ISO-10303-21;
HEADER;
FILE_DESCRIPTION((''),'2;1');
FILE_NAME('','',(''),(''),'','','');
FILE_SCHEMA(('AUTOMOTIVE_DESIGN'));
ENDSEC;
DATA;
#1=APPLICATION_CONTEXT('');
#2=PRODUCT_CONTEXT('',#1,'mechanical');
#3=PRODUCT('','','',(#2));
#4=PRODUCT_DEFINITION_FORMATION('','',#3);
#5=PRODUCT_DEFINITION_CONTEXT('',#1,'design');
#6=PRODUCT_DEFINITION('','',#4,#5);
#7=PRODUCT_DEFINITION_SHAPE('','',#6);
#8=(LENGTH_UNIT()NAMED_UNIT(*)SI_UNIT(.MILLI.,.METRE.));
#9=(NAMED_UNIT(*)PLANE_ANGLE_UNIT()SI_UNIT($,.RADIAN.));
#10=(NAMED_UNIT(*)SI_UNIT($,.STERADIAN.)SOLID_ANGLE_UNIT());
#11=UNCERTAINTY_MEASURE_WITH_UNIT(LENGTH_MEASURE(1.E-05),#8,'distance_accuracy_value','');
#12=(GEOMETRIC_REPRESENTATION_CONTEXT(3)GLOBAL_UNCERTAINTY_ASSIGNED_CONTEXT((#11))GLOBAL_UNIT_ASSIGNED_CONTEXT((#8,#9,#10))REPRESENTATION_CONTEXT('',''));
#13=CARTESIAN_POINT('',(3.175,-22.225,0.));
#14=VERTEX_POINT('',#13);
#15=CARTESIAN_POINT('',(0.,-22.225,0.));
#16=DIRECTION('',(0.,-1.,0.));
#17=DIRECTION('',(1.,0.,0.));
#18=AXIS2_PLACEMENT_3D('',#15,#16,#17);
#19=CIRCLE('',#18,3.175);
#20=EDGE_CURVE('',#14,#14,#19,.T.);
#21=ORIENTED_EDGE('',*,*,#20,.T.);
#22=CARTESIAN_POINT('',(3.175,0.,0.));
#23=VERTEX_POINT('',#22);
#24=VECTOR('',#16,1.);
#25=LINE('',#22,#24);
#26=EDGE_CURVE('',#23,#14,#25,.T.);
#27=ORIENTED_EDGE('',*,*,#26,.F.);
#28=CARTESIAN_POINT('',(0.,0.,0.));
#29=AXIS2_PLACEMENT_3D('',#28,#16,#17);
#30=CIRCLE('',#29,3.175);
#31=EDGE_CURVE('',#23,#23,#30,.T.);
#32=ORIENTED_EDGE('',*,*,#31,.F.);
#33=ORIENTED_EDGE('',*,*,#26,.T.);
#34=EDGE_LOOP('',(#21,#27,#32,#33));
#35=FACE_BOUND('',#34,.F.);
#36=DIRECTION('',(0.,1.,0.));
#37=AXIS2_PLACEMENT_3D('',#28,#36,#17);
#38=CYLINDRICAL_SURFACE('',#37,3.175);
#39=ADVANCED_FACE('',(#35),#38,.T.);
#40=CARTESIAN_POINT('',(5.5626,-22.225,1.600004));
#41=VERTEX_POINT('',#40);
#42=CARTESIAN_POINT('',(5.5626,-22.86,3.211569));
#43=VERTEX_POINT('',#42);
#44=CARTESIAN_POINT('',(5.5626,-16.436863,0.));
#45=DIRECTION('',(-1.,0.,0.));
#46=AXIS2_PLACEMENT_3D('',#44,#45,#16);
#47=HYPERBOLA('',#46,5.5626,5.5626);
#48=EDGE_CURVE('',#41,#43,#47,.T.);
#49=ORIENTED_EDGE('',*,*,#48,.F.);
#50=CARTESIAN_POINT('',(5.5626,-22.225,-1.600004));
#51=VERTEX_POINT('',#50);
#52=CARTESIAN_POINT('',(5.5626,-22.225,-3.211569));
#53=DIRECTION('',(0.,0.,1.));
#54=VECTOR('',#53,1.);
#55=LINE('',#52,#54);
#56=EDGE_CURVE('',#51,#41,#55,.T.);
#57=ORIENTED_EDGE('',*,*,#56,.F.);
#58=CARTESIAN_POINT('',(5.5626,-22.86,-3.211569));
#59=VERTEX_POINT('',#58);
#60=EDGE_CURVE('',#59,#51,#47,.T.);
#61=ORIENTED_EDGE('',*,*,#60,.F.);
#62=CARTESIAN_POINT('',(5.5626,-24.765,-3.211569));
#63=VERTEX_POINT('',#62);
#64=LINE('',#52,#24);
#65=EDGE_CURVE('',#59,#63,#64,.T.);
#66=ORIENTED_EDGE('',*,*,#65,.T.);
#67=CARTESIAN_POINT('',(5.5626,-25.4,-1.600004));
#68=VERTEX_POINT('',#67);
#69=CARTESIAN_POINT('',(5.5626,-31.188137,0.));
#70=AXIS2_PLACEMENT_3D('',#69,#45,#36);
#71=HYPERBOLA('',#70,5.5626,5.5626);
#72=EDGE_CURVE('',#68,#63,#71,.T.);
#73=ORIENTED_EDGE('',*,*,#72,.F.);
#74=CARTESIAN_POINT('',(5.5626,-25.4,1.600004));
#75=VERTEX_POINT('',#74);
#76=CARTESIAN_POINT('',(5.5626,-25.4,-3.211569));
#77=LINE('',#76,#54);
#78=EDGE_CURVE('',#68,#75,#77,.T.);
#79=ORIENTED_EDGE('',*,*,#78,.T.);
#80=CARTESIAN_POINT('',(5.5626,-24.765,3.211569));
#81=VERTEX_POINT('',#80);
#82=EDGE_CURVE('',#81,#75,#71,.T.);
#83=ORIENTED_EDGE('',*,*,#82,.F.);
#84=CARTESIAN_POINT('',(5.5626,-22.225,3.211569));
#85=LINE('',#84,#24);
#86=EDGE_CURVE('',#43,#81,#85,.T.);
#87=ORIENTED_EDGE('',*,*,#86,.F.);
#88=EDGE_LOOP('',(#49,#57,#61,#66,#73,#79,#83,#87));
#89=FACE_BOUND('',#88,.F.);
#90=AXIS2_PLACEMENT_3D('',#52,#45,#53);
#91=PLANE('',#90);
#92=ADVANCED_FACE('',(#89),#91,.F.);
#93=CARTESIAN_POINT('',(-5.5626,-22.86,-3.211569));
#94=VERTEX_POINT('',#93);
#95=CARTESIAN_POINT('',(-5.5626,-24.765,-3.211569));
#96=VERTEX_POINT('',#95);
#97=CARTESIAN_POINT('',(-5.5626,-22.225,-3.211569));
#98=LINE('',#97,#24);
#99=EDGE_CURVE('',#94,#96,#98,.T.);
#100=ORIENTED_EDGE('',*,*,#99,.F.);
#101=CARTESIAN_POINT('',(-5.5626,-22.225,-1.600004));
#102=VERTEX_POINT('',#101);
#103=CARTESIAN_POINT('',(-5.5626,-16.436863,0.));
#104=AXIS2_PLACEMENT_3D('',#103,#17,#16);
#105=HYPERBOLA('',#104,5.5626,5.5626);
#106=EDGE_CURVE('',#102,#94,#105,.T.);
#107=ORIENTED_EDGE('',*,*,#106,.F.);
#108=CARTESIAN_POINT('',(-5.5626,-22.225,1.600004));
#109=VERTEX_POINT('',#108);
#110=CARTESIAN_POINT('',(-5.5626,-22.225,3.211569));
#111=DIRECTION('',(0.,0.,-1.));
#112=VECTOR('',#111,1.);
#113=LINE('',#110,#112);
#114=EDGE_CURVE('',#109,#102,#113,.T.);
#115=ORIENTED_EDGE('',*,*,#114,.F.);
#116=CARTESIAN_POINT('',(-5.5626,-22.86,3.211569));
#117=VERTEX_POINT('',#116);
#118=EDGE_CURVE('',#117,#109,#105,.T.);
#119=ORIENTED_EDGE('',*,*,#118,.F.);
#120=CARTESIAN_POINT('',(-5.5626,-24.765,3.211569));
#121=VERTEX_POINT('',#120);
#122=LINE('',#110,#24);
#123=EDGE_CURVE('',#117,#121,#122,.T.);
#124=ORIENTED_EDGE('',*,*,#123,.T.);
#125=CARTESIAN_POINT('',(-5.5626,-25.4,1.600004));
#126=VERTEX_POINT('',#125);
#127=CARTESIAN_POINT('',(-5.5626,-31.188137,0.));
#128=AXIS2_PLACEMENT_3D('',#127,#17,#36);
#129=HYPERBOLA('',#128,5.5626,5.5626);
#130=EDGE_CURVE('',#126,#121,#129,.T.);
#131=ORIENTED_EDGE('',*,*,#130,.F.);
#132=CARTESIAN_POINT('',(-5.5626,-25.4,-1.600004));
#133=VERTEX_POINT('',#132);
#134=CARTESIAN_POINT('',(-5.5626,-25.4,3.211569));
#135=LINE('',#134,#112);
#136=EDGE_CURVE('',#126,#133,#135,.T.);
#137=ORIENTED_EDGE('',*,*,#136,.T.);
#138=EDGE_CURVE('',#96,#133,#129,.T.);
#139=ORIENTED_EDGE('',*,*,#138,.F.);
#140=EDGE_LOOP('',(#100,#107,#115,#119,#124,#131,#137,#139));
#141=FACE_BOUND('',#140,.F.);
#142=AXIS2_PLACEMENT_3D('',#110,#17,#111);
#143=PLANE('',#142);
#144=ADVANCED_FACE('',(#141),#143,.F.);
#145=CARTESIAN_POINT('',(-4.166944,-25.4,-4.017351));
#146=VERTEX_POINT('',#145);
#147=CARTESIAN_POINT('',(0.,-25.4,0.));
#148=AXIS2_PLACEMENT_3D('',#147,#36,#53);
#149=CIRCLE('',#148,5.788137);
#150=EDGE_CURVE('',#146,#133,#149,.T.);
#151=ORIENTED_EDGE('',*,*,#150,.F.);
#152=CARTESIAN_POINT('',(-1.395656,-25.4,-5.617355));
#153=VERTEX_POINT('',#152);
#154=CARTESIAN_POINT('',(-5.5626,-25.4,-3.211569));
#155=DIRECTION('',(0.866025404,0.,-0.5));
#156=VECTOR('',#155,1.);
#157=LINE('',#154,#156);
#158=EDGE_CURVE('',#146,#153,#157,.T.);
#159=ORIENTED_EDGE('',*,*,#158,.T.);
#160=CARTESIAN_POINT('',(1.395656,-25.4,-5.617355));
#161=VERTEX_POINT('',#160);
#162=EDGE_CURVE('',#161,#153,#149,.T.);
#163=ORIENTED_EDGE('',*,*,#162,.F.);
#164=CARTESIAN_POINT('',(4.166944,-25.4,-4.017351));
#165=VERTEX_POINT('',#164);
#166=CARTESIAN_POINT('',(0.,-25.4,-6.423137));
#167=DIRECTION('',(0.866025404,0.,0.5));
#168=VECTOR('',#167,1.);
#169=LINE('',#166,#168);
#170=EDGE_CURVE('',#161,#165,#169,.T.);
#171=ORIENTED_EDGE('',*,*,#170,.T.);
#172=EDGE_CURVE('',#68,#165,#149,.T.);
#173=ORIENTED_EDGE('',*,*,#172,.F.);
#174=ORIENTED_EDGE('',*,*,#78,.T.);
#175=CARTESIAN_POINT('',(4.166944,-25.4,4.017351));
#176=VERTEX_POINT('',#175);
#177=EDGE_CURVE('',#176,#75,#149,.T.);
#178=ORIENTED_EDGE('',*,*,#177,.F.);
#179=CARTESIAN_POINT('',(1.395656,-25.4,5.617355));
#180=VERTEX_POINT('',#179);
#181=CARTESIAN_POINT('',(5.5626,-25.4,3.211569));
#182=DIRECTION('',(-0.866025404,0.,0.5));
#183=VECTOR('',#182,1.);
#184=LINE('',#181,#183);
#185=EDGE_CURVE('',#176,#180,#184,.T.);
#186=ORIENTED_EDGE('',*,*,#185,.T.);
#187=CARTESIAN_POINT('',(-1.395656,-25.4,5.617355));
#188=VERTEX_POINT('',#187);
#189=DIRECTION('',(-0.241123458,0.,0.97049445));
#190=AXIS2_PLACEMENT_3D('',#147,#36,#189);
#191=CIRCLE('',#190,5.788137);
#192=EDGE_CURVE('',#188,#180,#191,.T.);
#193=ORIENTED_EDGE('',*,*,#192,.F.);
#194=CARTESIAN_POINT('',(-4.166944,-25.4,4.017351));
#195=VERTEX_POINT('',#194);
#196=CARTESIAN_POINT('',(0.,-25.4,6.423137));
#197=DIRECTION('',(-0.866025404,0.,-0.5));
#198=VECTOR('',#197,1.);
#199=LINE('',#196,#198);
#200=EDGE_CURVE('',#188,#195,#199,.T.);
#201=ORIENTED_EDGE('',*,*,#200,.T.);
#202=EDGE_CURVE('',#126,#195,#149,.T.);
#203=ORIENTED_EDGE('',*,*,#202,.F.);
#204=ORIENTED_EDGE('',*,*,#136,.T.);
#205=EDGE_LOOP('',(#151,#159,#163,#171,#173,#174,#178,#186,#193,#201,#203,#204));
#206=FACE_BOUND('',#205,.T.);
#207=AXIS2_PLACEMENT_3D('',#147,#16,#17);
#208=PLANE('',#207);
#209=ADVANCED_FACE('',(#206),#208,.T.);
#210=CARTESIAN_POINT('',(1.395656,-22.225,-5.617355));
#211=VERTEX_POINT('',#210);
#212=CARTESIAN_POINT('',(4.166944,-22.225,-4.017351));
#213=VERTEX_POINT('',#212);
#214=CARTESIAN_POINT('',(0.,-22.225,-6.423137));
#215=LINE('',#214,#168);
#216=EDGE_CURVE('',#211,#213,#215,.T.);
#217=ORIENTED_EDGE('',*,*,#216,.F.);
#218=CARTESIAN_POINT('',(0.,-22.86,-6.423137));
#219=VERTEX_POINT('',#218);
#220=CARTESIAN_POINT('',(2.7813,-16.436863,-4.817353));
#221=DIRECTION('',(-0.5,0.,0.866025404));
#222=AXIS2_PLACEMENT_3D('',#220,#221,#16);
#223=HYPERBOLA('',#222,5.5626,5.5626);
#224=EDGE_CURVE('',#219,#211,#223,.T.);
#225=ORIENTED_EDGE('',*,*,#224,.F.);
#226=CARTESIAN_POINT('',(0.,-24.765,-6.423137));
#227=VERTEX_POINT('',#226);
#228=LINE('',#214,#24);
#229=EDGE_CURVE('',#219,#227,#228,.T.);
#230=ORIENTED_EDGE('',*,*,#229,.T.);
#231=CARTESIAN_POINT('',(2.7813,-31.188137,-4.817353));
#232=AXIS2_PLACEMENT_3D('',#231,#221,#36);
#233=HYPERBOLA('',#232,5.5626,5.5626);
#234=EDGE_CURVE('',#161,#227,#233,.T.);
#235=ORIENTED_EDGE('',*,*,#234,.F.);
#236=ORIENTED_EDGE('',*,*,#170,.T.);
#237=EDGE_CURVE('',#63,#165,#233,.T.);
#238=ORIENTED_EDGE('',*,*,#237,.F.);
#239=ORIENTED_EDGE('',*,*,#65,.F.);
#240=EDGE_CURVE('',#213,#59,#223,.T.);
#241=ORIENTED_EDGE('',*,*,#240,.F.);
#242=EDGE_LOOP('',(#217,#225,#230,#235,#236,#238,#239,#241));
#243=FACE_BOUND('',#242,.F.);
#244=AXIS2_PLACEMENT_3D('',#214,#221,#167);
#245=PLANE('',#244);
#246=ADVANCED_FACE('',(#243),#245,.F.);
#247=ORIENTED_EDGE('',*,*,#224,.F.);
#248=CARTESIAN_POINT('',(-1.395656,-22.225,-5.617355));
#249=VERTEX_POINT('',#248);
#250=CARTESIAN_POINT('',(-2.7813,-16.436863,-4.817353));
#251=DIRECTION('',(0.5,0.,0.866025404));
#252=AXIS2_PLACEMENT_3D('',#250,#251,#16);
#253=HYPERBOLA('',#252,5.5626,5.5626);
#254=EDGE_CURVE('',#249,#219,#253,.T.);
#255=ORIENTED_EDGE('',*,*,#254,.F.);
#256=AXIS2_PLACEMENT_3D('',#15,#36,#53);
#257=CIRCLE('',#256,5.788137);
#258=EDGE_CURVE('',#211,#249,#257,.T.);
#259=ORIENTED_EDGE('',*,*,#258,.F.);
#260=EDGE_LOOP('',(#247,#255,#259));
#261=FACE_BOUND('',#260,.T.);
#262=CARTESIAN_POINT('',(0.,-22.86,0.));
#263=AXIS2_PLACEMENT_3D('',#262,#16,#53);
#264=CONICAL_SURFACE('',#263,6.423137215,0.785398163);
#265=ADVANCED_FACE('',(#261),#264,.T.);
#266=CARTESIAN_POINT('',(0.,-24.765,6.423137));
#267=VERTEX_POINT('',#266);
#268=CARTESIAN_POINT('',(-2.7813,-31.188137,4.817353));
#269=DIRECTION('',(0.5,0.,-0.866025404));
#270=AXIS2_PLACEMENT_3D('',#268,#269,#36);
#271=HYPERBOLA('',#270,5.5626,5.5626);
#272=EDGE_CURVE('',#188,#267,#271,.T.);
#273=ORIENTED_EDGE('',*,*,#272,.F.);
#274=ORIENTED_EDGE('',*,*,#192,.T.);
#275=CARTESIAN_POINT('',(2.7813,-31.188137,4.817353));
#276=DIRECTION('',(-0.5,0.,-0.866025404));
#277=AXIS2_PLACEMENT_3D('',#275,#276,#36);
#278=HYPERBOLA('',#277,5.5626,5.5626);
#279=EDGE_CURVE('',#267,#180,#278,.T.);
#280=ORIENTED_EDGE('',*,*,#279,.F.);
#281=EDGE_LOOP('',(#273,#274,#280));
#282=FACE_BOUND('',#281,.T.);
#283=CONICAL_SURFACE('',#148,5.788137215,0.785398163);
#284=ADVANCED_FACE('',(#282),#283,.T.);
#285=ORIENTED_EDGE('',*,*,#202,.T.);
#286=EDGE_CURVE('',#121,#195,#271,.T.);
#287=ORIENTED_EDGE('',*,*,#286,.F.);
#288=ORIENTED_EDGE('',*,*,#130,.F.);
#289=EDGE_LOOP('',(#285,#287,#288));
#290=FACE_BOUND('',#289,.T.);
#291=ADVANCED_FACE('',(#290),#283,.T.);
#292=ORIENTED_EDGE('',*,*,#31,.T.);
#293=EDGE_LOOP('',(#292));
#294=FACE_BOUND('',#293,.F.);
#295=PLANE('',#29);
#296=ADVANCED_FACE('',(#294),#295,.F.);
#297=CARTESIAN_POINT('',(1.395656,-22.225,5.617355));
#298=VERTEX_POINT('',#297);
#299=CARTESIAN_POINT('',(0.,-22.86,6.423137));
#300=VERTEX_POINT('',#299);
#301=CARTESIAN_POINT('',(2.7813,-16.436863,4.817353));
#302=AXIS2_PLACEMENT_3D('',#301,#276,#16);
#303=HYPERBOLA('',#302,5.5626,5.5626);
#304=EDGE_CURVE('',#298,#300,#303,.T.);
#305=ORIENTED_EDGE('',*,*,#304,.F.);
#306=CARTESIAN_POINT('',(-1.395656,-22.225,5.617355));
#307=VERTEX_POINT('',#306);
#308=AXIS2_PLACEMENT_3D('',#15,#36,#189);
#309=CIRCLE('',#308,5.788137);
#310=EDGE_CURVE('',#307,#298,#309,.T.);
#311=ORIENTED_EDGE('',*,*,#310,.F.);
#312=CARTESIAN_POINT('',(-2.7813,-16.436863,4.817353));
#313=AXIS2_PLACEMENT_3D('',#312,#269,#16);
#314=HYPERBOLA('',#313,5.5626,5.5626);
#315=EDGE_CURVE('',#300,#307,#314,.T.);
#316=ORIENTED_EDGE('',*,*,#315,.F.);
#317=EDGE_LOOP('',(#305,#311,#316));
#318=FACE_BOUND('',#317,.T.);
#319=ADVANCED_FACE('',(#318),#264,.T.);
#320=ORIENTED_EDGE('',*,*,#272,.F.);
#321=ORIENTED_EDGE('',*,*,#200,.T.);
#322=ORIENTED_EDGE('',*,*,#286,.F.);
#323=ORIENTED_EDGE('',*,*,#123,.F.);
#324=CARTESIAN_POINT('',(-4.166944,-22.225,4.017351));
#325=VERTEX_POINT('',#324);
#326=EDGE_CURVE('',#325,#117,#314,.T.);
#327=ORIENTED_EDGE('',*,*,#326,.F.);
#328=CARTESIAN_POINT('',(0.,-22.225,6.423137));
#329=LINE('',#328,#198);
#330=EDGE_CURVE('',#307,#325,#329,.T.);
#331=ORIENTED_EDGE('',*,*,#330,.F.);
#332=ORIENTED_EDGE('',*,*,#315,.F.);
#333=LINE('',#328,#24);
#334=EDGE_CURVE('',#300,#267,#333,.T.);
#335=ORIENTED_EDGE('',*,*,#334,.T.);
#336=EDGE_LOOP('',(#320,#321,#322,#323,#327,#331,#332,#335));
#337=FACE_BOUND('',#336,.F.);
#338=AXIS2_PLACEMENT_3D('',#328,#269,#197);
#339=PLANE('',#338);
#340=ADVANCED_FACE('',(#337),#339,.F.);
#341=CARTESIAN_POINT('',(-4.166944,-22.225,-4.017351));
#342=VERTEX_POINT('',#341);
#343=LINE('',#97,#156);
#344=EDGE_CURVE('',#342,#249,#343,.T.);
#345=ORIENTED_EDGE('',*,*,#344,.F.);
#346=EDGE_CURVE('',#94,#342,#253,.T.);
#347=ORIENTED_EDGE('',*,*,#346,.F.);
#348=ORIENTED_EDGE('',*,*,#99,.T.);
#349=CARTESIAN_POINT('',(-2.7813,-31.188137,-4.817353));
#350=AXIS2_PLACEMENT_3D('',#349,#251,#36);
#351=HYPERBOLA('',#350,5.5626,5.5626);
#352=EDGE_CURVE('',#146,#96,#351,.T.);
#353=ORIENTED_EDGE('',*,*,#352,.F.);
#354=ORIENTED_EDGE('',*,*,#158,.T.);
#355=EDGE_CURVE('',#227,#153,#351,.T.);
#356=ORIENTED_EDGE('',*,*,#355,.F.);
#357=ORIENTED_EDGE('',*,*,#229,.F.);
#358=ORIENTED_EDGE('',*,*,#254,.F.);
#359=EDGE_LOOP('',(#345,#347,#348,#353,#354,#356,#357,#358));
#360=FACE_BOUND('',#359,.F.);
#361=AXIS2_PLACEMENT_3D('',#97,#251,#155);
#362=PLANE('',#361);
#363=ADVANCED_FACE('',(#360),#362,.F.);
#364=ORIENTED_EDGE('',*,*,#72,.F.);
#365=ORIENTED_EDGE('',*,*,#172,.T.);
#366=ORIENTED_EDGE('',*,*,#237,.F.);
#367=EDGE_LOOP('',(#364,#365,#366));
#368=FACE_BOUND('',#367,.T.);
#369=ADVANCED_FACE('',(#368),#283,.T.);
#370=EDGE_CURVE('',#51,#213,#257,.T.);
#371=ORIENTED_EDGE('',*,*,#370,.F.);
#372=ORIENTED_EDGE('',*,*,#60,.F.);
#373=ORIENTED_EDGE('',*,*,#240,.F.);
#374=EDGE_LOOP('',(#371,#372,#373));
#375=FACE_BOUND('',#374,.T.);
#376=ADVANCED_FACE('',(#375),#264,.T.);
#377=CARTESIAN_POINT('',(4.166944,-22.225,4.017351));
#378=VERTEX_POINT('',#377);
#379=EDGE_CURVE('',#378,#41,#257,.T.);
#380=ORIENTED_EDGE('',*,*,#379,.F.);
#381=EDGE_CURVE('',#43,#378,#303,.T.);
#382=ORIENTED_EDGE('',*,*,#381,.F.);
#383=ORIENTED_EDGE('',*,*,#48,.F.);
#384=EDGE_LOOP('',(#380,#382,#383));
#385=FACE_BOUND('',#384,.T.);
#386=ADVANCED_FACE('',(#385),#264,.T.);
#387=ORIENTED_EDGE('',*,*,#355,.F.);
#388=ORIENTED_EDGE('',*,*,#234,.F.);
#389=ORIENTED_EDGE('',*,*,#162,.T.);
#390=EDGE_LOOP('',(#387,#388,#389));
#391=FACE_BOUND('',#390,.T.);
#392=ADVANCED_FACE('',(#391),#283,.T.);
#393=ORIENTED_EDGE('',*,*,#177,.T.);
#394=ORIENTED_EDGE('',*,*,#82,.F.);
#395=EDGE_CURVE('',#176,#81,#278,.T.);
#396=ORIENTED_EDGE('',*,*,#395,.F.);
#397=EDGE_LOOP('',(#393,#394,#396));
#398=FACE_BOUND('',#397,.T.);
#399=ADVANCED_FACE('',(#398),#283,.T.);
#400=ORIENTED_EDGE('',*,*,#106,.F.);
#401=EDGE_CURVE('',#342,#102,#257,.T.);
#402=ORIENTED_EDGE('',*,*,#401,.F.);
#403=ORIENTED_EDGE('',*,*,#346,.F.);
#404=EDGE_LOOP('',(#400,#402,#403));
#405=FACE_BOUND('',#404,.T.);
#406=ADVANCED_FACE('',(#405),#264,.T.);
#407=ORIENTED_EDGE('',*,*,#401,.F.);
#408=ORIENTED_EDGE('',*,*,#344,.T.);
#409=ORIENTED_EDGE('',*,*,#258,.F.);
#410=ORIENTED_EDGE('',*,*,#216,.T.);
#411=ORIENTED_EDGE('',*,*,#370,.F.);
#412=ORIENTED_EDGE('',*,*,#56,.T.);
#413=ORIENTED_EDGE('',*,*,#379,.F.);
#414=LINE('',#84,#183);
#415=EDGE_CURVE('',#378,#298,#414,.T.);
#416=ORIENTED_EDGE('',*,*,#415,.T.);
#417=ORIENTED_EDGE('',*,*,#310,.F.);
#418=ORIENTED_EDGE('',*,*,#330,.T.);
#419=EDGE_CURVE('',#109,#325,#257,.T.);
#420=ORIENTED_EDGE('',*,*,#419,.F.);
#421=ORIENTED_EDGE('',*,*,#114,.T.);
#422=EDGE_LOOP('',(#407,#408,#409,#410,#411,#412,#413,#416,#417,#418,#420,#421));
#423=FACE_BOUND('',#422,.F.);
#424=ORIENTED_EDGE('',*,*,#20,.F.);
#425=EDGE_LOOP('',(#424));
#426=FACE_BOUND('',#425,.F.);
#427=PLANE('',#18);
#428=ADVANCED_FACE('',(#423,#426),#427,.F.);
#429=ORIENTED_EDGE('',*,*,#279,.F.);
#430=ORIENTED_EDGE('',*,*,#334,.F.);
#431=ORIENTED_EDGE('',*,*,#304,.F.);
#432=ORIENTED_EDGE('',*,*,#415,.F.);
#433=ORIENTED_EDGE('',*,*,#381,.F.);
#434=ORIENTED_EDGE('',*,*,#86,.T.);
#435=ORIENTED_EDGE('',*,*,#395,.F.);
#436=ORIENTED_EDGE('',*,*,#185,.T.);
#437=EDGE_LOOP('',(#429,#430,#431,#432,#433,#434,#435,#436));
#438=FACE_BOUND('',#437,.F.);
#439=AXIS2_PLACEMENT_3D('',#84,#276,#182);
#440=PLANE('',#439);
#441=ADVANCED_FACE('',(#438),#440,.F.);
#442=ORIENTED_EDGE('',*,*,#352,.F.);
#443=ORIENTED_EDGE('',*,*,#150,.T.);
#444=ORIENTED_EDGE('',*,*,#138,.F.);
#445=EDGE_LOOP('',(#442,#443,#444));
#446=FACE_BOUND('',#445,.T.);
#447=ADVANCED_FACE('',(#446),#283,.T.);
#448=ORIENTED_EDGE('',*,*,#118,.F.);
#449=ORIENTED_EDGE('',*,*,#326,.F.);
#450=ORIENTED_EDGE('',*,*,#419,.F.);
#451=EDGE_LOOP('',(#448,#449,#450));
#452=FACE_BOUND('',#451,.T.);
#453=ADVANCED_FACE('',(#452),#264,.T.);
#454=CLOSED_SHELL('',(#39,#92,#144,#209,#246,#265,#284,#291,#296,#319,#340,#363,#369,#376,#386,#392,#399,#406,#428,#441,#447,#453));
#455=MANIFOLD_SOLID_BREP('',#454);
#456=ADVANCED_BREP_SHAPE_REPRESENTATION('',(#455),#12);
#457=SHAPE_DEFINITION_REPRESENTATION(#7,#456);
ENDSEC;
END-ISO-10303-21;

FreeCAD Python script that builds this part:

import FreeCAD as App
import Part
import Sketcher

V = App.Vector
Q = App.Units.Quantity


def add_polygon(sketch, points):
    """Adds a closed chain of lines whose ends are joined by coincident constraints."""
    first, n = sketch.GeometryCount, len(points)
    for a, b in zip(points, points[1:] + points[:1]):
        sketch.addGeometry(Part.LineSegment(App.Vector(*a, 0), App.Vector(*b, 0)), False)
    for i in range(n):
        sketch.addConstraint(Sketcher.Constraint("Coincident", first + i, 2, first + (i + 1) % n, 1))

doc = App.newDocument("Part")
params = doc.addObject("Spreadsheet::Sheet", "Params")
for row, (alias, value) in enumerate([
    ("sketch1_diameter", "0.25 in"),
    ("pad1_length", "0.875 in"),
    ("pad2_length", "0.125 in"),
    ("sketch3_width", "0.025 in"),
    ("groove_angle", "360 deg"),
], start=1):
    params.set(f"A{row}", alias)
    params.set(f"B{row}", "=" + value)
    params.setAlias(f"B{row}", alias)

body = doc.addObject("PartDesign::Body", "Body")

sketch1 = body.newObject("Sketcher::SketchObject", "Sketch")
sketch1.AttachmentSupport = (doc.getObject("XZ_Plane"), [""])
sketch1.MapMode = "FlatFace"
sketch1.addGeometry(Part.Circle(V(0, 0, 0), V(0, 0, 1), 3.2), False)
sketch1.addConstraint([
    Sketcher.Constraint("Coincident", 0, 3, -1, 1),
    Sketcher.Constraint("Diameter", 0, Q("0.25 in")),
])
sketch1.setExpression("Constraints[1]", "Params.sketch1_diameter")
pad1 = body.newObject("PartDesign::Pad", "Pad")
pad1.Profile = sketch1
pad1.setExpression("Length", "Params.pad1_length")

sketch2 = body.newObject("Sketcher::SketchObject", "Sketch001")
sketch2.AttachmentSupport = (doc.getObject("XZ_Plane"), [""])
sketch2.MapMode = "FlatFace"
sketch2.AttachmentOffset = App.Placement(V(0, 0, 0.875 * 25.4), App.Rotation())
add_polygon(sketch2, [(6, 3), (0, 6), (-6, 3), (-6, -3), (0, -6), (6, -3)])
sketch2.addConstraint([
    Sketcher.Constraint("Vertical", 2),
    Sketcher.Constraint("Vertical", 5),
    Sketcher.Constraint("Symmetric", 0, 2, 3, 2, -1, 1),
    Sketcher.Constraint("Symmetric", 1, 2, 4, 2, -1, 1),
    Sketcher.Constraint("PointOnObject", 0, 2, -2),
    Sketcher.Constraint("Parallel", 0, 3),
    Sketcher.Constraint("Horizontal", 2, 2, 4, 2),
    Sketcher.Constraint("Angle", 0, Q("150 deg")),
    Sketcher.Constraint("DistanceX", 1, 2, -1, 1, Q("0.219 in")),
    Sketcher.Constraint("DistanceY", 2, 2, 2, 1, Q("6.423137 mm")),
])
pad2 = body.newObject("PartDesign::Pad", "Pad001")
pad2.Profile = sketch2
pad2.setExpression("Length", "Params.pad2_length")

sketch3 = body.newObject("Sketcher::SketchObject", "Sketch002")
sketch3.AttachmentSupport = (doc.getObject("YZ_Plane"), [""])
sketch3.MapMode = "FlatFace"
add_polygon(sketch3, [(-24.8, 6.4), (-25.4, 6.4), (-25.4, 5.8)])
add_polygon(sketch3, [(-22.2, 5.8), (-22.2, 6.4), (-22.9, 6.4)])
sketch3.addConstraint([
    Sketcher.Constraint("Horizontal", 0),
    Sketcher.Constraint("Vertical", 1),
    Sketcher.Constraint("Vertical", 3),
    Sketcher.Constraint("Horizontal", 4),
    Sketcher.Constraint("Perpendicular", 2, 5),
    Sketcher.Constraint("Horizontal", 2, 2, 3, 2),
    Sketcher.Constraint("Horizontal", 1, 2, 5, 2),
    Sketcher.Constraint("Equal", 0, 4),
    Sketcher.Constraint("DistanceX", 0, 2, -1, 1, Q("1 in")),
    Sketcher.Constraint("DistanceX", 4, 2, -1, 1, Q("0.9 in")),
    Sketcher.Constraint("DistanceX", 0, 2, 0, 1, Q("0.025 in")),
    Sketcher.Constraint("DistanceY", -1, 1, 0, 2, Q("6.423137 mm")),
])
sketch3.setExpression("Constraints[16]", "Params.sketch3_width")
groove = body.newObject("PartDesign::Groove", "Groove")
groove.Profile = sketch3
groove.ReferenceAxis = (sketch3, ["H_Axis"])
groove.setExpression("Angle", "Params.groove_angle")

doc.recompute()
